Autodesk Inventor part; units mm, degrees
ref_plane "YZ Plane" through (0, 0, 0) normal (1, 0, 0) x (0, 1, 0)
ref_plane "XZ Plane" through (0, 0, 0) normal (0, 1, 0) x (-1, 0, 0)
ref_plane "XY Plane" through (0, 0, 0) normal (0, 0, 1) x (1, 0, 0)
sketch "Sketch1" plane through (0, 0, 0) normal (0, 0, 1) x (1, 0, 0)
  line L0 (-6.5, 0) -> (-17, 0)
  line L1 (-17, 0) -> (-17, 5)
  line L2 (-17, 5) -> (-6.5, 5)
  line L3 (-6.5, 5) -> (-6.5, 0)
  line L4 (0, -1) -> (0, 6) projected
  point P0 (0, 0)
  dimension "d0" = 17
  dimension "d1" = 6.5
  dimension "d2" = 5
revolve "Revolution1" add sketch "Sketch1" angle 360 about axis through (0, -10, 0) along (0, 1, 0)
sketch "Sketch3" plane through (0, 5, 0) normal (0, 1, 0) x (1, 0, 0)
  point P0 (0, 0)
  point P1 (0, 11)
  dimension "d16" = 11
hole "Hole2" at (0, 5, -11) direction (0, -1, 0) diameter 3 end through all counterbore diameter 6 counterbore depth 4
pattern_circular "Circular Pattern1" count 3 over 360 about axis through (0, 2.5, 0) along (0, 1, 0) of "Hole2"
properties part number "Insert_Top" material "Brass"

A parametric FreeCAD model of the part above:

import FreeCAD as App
import Part
import Sketcher

V = App.Vector
Q = App.Units.Quantity


def add_polygon(sketch, points):
    """Adds a closed chain of lines whose ends are joined by coincident constraints."""
    first, n = sketch.GeometryCount, len(points)
    for a, b in zip(points, points[1:] + points[:1]):
        sketch.addGeometry(Part.LineSegment(App.Vector(*a, 0), App.Vector(*b, 0)), False)
    for i in range(n):
        sketch.addConstraint(Sketcher.Constraint("Coincident", first + i, 2, first + (i + 1) % n, 1))

doc = App.newDocument("Part")
body = doc.addObject("PartDesign::Body", "Body")

sketch1 = doc.addObject("Sketcher::SketchObject", "Sketch")
body.addObject(sketch1)
sketch1.AttachmentSupport = (doc.XY_Plane, [""])
sketch1.MapMode = "FlatFace"
add_polygon(sketch1, [(-17, 0), (-6, 0), (-6, 5), (-17, 5)])
sketch1.addConstraint(Sketcher.Constraint("Horizontal", 0))
sketch1.addConstraint(Sketcher.Constraint("Vertical", 1))
sketch1.addConstraint(Sketcher.Constraint("Horizontal", 2))
sketch1.addConstraint(Sketcher.Constraint("Vertical", 3))
sketch1.addConstraint(Sketcher.Constraint("PointOnObject", 0, 2, -1))
sketch1.addConstraint(Sketcher.Constraint("DistanceY", 1, 1, 1, 2, Q("5 mm")))
sketch1.addConstraint(Sketcher.Constraint("DistanceX", 2, 2, -1, 1, Q("17 mm")))
sketch1.addConstraint(Sketcher.Constraint("DistanceX", 0, 2, -1, 1, Q("6.5 mm")))
revolution = doc.addObject("PartDesign::Revolution", "Revolution")
body.addObject(revolution)
revolution.Profile = sketch1
revolution.ReferenceAxis = (sketch1, ["V_Axis"])
revolution.Angle = 360

sketch2 = doc.addObject("Sketcher::SketchObject", "Sketch001")
body.addObject(sketch2)
sketch2.AttachmentSupport = (doc.XZ_Plane, [""])
sketch2.MapMode = "FlatFace"
sketch2.AttachmentOffset = App.Placement(V(0, 0, -5), App.Rotation())
sketch2.addGeometry(Part.Circle(V(0, -11, 0), V(0, 0, 1), 1.5), False)
sketch2.addConstraint(Sketcher.Constraint("PointOnObject", 0, 3, -2))
sketch2.addConstraint(Sketcher.Constraint("Diameter", 0, Q("3 mm")))
sketch2.addConstraint(Sketcher.Constraint("DistanceY", 0, 3, -1, 1, Q("11 mm")))
doc.recompute()
hole = doc.addObject("PartDesign::Hole", "Hole")
body.addObject(hole)
hole.Profile = sketch2
hole.ThreadType = "None"
hole.Diameter = 3
hole.DepthType = "ThroughAll"
hole.HoleCutType = "Counterbore"
hole.HoleCutDiameter = 6
hole.HoleCutDepth = 4
hole.Reversed = True
doc.recompute()

polarpattern = doc.addObject("PartDesign::PolarPattern", "PolarPattern")
body.addObject(polarpattern)
polarpattern.Originals = [hole]
polarpattern.Axis = (doc.Y_Axis, [""])
polarpattern.Angle = 360
polarpattern.Occurrences = 3
body.Tip = polarpattern

doc.recompute()
